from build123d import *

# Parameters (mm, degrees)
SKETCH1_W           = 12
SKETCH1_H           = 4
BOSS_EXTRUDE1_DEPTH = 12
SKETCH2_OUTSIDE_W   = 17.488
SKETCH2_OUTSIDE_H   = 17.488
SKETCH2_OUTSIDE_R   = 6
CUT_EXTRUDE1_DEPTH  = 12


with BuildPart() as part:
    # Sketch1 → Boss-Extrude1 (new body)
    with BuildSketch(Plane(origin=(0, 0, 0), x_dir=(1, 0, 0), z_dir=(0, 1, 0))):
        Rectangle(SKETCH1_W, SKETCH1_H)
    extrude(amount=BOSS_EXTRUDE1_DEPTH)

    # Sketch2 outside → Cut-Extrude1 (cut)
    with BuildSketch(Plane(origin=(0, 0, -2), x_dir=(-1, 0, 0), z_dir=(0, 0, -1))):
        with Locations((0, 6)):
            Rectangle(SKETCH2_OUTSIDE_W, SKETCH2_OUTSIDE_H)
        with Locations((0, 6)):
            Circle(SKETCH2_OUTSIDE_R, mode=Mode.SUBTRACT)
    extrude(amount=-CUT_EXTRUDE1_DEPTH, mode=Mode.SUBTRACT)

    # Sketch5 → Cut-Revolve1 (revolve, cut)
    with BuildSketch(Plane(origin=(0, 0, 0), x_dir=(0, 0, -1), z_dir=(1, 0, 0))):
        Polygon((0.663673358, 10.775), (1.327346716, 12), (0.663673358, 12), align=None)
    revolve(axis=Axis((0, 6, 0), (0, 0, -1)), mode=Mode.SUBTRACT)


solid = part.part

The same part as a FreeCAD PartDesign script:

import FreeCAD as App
import Part
import Sketcher
from FreeCAD import Vector


def add_polygon(sketch, points):
    """Adds a closed chain of lines whose ends are joined by coincident constraints."""
    first, n = sketch.GeometryCount, len(points)
    for a, b in zip(points, points[1:] + points[:1]):
        sketch.addGeometry(Part.LineSegment(App.Vector(*a, 0), App.Vector(*b, 0)), False)
    for i in range(n):
        sketch.addConstraint(Sketcher.Constraint("Coincident", first + i, 2, first + (i + 1) % n, 1))

doc = App.newDocument("Part")
params = doc.addObject("Spreadsheet::Sheet", "Params")
for row, (alias, value) in enumerate([
    ("sketch1_width", "12 mm"),
    ("sketch1_height", "4 mm"),
    ("pad1_length", "12 mm"),
    ("sketch2_diameter", "12 mm"),
    ("pocket1_length", "12 mm"),
    ("groove_angle", "360 deg"),
], start=1):
    params.set(f"A{row}", alias)
    params.set(f"B{row}", "=" + value)
    params.setAlias(f"B{row}", alias)

body = doc.addObject("PartDesign::Body", "Body")

# Sketch on XZ plane
sketch1 = body.newObject("Sketcher::SketchObject", "Sketch")
sketch1.AttachmentSupport = (doc.getObject("XZ_Plane"), [""])
sketch1.MapMode = "FlatFace"
add_polygon(sketch1, [(-6, -2), (-6, 2), (6, 2), (6, -2)])  # lines 0-3
sketch1.addConstraint([
    Sketcher.Constraint("Vertical", 0),
    Sketcher.Constraint("Horizontal", 1),
    Sketcher.Constraint("Vertical", 2),
    Sketcher.Constraint("Horizontal", 3),
    Sketcher.Constraint("Symmetric", 0, 2, 2, 2, -1, 1),
    Sketcher.Constraint("DistanceX", 1, 1, 1, 2, 12.0),
    Sketcher.Constraint("DistanceY", 0, 1, 0, 2, 4.0),
])
sketch1.setExpression("Constraints[9]", "Params.sketch1_width")
sketch1.setExpression("Constraints[10]", "Params.sketch1_height")
pad1 = body.newObject("PartDesign::Pad", "Pad")
pad1.Profile = sketch1
pad1.setExpression("Length", "Params.pad1_length")
pad1.Reversed = True

# Sketch on XY plane
sketch2 = body.newObject("Sketcher::SketchObject", "Sketch001")
sketch2.AttachmentSupport = (doc.getObject("XY_Plane"), [""])
sketch2.MapMode = "FlatFace"
sketch2.AttachmentOffset = App.Placement(Vector(0, 0, -2), App.Rotation())
add_polygon(sketch2, [(9, 15), (9, -3), (-9, -3), (-9, 15)])  # lines 0-3
sketch2.addGeometry(Part.Circle(Vector(0, 6, 0), Vector(0, 0, 1), 6), False)  # 4
sketch2.addConstraint([
    Sketcher.Constraint("Vertical", 0),
    Sketcher.Constraint("Horizontal", 1),
    Sketcher.Constraint("Vertical", 2),
    Sketcher.Constraint("Horizontal", 3),
    Sketcher.Constraint("PointOnObject", 4, 3, -2),
    Sketcher.Constraint("Equal", 3, 0),
    Sketcher.Constraint("Diameter", 4, 12.0),
    Sketcher.Constraint("DistanceY", -1, 1, 4, 3, 6.0),
    Sketcher.Constraint("DistanceX", 1, 2, 1, 1, 17.488),
    Sketcher.Constraint("DistanceX", -1, 1, 0, 2, 8.744),
    Sketcher.Constraint("DistanceY", 0, 2, -1, 1, 2.744),
])
sketch2.setExpression("Constraints[10]", "Params.sketch2_diameter")
pocket1 = body.newObject("PartDesign::Pocket", "Pocket")
pocket1.Profile = sketch2
pocket1.setExpression("Length", "Params.pocket1_length")
pocket1.Reversed = True

# Sketch on YZ plane
sketch3 = body.newObject("Sketcher::SketchObject", "Sketch002")
sketch3.AttachmentSupport = (doc.getObject("YZ_Plane"), [""])
sketch3.MapMode = "FlatFace"
add_polygon(sketch3, [(10.8, -0.7), (12, -1.3), (12, -0.7)])  # lines 0-2
sketch3.addGeometry(Part.LineSegment(Vector(6, -0.7, 0), Vector(6, -1.3, 0)), True)  # axis
sketch3.addConstraint([
    Sketcher.Constraint("Vertical", 1),
    Sketcher.Constraint("Horizontal", 2),
    Sketcher.Constraint("Vertical", 3),
    Sketcher.Constraint("Horizontal", 2, 2, 3, 1),
    Sketcher.Constraint("Horizontal", 0, 2, 3, 2),
    Sketcher.Constraint("DistanceX", -1, 1, 0, 2, 12.0),
    Sketcher.Constraint("DistanceX", -1, 1, 3, 1, 6.0),
    Sketcher.Constraint("DistanceX", 2, 2, 2, 1, 1.225),
    Sketcher.Constraint("Distance", 0, 1.393229),
    Sketcher.Constraint("DistanceY", 0, 2, -1, 1, 1.327347),
])
groove = body.newObject("PartDesign::Groove", "Groove")
groove.Profile = sketch3
groove.ReferenceAxis = (sketch3, ["Axis0"])
groove.setExpression("Angle", "Params.groove_angle")

doc.recompute()
